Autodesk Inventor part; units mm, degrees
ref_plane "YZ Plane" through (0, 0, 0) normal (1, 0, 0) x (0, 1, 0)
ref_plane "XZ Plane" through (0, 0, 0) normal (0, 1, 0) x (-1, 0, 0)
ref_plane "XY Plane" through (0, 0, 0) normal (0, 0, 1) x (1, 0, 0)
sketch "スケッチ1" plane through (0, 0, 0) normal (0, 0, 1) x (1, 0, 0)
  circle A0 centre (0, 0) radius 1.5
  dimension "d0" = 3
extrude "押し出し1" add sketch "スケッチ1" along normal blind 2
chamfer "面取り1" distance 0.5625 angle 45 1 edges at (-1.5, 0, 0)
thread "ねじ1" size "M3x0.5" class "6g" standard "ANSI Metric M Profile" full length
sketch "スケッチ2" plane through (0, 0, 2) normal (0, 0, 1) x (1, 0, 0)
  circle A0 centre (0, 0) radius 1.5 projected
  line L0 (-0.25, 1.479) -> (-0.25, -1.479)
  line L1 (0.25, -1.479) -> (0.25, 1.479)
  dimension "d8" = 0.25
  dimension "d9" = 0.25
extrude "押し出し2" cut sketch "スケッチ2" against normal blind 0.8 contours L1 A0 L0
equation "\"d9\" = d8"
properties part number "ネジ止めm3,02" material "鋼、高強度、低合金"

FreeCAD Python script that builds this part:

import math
import FreeCAD as App
import Part
import Sketcher
from FreeCAD import Vector


def edges_at(feature, points):
    """Names of the edges that pass closest to the given points."""
    edges = feature.Shape.Edges
    near = lambda p: min(range(len(edges)), key=lambda i: edges[i].distToShape(Part.Vertex(*p))[0])
    return sorted({f"Edge{near(p) + 1}" for p in points})

doc = App.newDocument("Part")
params = doc.addObject("Spreadsheet::Sheet", "Params")
for row, (alias, value) in enumerate([
    ("sketch1_diameter", "3 mm"),
    ("pad1_length", "2 mm"),
    ("chamfer_size", "0.5625 mm"),
    ("sketch2_radius", "1.5 mm"),
    ("pocket1_length", "0.8 mm"),
], start=1):
    params.set(f"A{row}", alias)
    params.set(f"B{row}", "=" + value)
    params.setAlias(f"B{row}", alias)

body = doc.addObject("PartDesign::Body", "Body")

# Sketch on XY plane
sketch1 = doc.addObject("Sketcher::SketchObject", "Sketch")
body.addObject(sketch1)
sketch1.AttachmentSupport = (doc.XY_Plane, [""])
sketch1.MapMode = "FlatFace"
sketch1.addGeometry(Part.Circle(Vector(0, 0, 0), Vector(0, 0, 1), 1.5), False)
sketch1.addConstraint([
    Sketcher.Constraint("Coincident", 0, 3, -1, 1),
    Sketcher.Constraint("Diameter", 0, 3.0),
])
sketch1.setExpression("Constraints[1]", "Params.sketch1_diameter")
pad1 = doc.addObject("PartDesign::Pad", "Pad")
body.addObject(pad1)
pad1.Profile = sketch1
pad1.setExpression("Length", "Params.pad1_length")
doc.recompute()

chamfer = doc.addObject("PartDesign::Chamfer", "Chamfer")
body.addObject(chamfer)
chamfer.Base = (pad1, edges_at(pad1, [(-1.5, 0, 0)]))
chamfer.setExpression("Size", "Params.chamfer_size")

# Sketch on XY plane
sketch2 = doc.addObject("Sketcher::SketchObject", "Sketch001")
body.addObject(sketch2)
sketch2.AttachmentSupport = (doc.XY_Plane, [""])
sketch2.MapMode = "FlatFace"
sketch2.AttachmentOffset = App.Placement(Vector(0, 0, 2), App.Rotation())
sketch2.addGeometry([
    Part.LineSegment(Vector(0.25, -1.479, 0), Vector(0.25, 1.479, 0)),
    Part.ArcOfCircle(Part.Circle(Vector(0, 0, 0), Vector(0, 0, 1), 1.5), math.radians(80.405805), math.radians(99.594195)),
    Part.LineSegment(Vector(-0.25, 1.479, 0), Vector(-0.25, -1.479, 0)),
    Part.ArcOfCircle(Part.Circle(Vector(0, 0, 0), Vector(0, 0, 1), 1.5), math.radians(-99.594195), math.radians(-80.405805)),
], False)
sketch2.addConstraint([
    Sketcher.Constraint("Coincident", 0, 2, 1, 1),
    Sketcher.Constraint("Coincident", 1, 2, 2, 1),
    Sketcher.Constraint("Coincident", 2, 2, 3, 1),
    Sketcher.Constraint("Coincident", 3, 2, 0, 1),
    Sketcher.Constraint("Vertical", 0),
    Sketcher.Constraint("Vertical", 2),
    Sketcher.Constraint("Coincident", 1, 3, -1, 1),
    Sketcher.Constraint("Coincident", 3, 3, -1, 1),
    Sketcher.Constraint("Equal", 1, 3),
    Sketcher.Constraint("Horizontal", 0, 2, 1, 2),
    Sketcher.Constraint("Radius", 1, 1.5),
    Sketcher.Constraint("DistanceX", -1, 1, 0, 2, 0.25),
])
sketch2.setExpression("Constraints[10]", "Params.sketch2_radius")
pocket1 = doc.addObject("PartDesign::Pocket", "Pocket")
body.addObject(pocket1)
pocket1.Profile = sketch2
pocket1.setExpression("Length", "Params.pocket1_length")

doc.recompute()
